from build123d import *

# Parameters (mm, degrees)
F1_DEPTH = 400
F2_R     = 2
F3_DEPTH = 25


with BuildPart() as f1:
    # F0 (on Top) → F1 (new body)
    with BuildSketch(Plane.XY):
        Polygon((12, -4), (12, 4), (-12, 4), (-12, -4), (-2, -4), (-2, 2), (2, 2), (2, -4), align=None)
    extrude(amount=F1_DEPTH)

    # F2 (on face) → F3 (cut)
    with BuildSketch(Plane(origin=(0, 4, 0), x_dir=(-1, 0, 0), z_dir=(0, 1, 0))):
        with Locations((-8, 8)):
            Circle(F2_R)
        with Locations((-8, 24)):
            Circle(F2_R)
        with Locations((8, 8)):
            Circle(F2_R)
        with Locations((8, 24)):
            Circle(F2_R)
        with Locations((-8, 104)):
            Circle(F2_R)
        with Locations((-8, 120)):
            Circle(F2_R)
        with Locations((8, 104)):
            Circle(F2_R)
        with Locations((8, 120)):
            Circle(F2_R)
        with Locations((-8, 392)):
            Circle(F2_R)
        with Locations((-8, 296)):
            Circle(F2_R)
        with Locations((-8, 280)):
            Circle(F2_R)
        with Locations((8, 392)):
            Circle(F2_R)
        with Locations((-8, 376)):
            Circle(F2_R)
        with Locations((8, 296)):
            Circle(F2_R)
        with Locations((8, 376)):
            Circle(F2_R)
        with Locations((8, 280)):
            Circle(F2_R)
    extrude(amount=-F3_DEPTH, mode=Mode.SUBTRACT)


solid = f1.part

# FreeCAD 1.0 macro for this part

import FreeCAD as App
import Part
import Sketcher


def add_polygon(sketch, points):
    """Adds a closed chain of lines whose ends are joined by coincident constraints."""
    first, n = sketch.GeometryCount, len(points)
    for a, b in zip(points, points[1:] + points[:1]):
        sketch.addGeometry(Part.LineSegment(App.Vector(*a, 0), App.Vector(*b, 0)), False)
    for i in range(n):
        sketch.addConstraint(Sketcher.Constraint("Coincident", first + i, 2, first + (i + 1) % n, 1))

doc = App.newDocument("Part")
body = doc.addObject("PartDesign::Body", "Body")

sketch1 = doc.addObject("Sketcher::SketchObject", "Sketch")
body.addObject(sketch1)
sketch1.AttachmentSupport = (doc.XY_Plane, [""])
sketch1.MapMode = "FlatFace"
add_polygon(sketch1, [(12, -4), (12, 4), (-12, 4), (-12, -4), (-2, -4), (-2, 2), (2, 2), (2, -4)])
sketch1.addConstraint([
    Sketcher.Constraint("Vertical", 0),
    Sketcher.Constraint("Horizontal", 1),
    Sketcher.Constraint("Vertical", 2),
    Sketcher.Constraint("Horizontal", 3),
    Sketcher.Constraint("Vertical", 4),
    Sketcher.Constraint("Horizontal", 5),
    Sketcher.Constraint("Vertical", 6),
    Sketcher.Constraint("Horizontal", 7),
    Sketcher.Constraint("Symmetric", 0, 2, 2, 2, -1, 1),
    Sketcher.Constraint("Symmetric", 3, 2, 6, 2, -2),
    Sketcher.Constraint("DistanceX", 1, 2, 1, 1, 24.0),
    Sketcher.Constraint("DistanceX", 3, 1, 3, 2, 10.0),
    Sketcher.Constraint("DistanceY", 0, 1, 0, 2, 8.0),
    Sketcher.Constraint("DistanceY", 4, 1, 4, 2, 6.0),
])
pad1 = doc.addObject("PartDesign::Pad", "Pad")
body.addObject(pad1)
pad1.Profile = sketch1
pad1.Length = 400

sketch2 = doc.addObject("Sketcher::SketchObject", "Sketch001")
body.addObject(sketch2)
sketch2.AttachmentSupport = (doc.XZ_Plane, [""])
sketch2.MapMode = "FlatFace"
sketch2.AttachmentOffset = App.Placement(App.Vector(0, 0, -4), App.Rotation())
sketch2.addGeometry([
    Part.Circle(App.Vector(8, 8, 0), App.Vector(0, 0, 1), 2),
    Part.Circle(App.Vector(8, 24, 0), App.Vector(0, 0, 1), 2),
    Part.Circle(App.Vector(-8, 8, 0), App.Vector(0, 0, 1), 2),
    Part.Circle(App.Vector(-8, 24, 0), App.Vector(0, 0, 1), 2),
    Part.Circle(App.Vector(8, 104, 0), App.Vector(0, 0, 1), 2),
    Part.Circle(App.Vector(8, 120, 0), App.Vector(0, 0, 1), 2),
    Part.Circle(App.Vector(-8, 104, 0), App.Vector(0, 0, 1), 2),
    Part.Circle(App.Vector(-8, 120, 0), App.Vector(0, 0, 1), 2),
    Part.Circle(App.Vector(8, 392, 0), App.Vector(0, 0, 1), 2),
    Part.Circle(App.Vector(8, 296, 0), App.Vector(0, 0, 1), 2),
    Part.Circle(App.Vector(8, 280, 0), App.Vector(0, 0, 1), 2),
    Part.Circle(App.Vector(-8, 392, 0), App.Vector(0, 0, 1), 2),
    Part.Circle(App.Vector(8, 376, 0), App.Vector(0, 0, 1), 2),
    Part.Circle(App.Vector(-8, 296, 0), App.Vector(0, 0, 1), 2),
    Part.Circle(App.Vector(-8, 376, 0), App.Vector(0, 0, 1), 2),
    Part.Circle(App.Vector(-8, 280, 0), App.Vector(0, 0, 1), 2),
], False)
sketch2.addConstraint([
    Sketcher.Constraint("Equal", 0, 1),
    Sketcher.Constraint("Equal", 1, 2),
    Sketcher.Constraint("Equal", 2, 3),
    Sketcher.Constraint("Equal", 3, 4),
    Sketcher.Constraint("Equal", 4, 5),
    Sketcher.Constraint("Equal", 5, 6),
    Sketcher.Constraint("Equal", 6, 7),
    Sketcher.Constraint("Equal", 7, 8),
    Sketcher.Constraint("Equal", 8, 9),
    Sketcher.Constraint("Equal", 9, 10),
    Sketcher.Constraint("Equal", 10, 11),
    Sketcher.Constraint("Equal", 11, 12),
    Sketcher.Constraint("Equal", 12, 13),
    Sketcher.Constraint("Equal", 13, 14),
    Sketcher.Constraint("Equal", 14, 15),
    Sketcher.Constraint("Symmetric", 0, 3, 2, 3, -2),
    Sketcher.Constraint("Symmetric", 1, 3, 3, 3, -2),
    Sketcher.Constraint("Symmetric", 4, 3, 6, 3, -2),
    Sketcher.Constraint("Symmetric", 5, 3, 7, 3, -2),
    Sketcher.Constraint("Symmetric", 8, 3, 11, 3, -2),
    Sketcher.Constraint("Symmetric", 9, 3, 13, 3, -2),
    Sketcher.Constraint("Symmetric", 12, 3, 14, 3, -2),
    Sketcher.Constraint("Symmetric", 10, 3, 15, 3, -2),
    Sketcher.Constraint("Vertical", 0, 3, 1, 3),
    Sketcher.Constraint("Vertical", 1, 3, 4, 3),
    Sketcher.Constraint("Vertical", 4, 3, 5, 3),
    Sketcher.Constraint("Vertical", 5, 3, 8, 3),
    Sketcher.Constraint("Vertical", 8, 3, 9, 3),
    Sketcher.Constraint("Vertical", 9, 3, 10, 3),
    Sketcher.Constraint("Vertical", 10, 3, 12, 3),
    Sketcher.Constraint("Diameter", 0, 4.0),
    Sketcher.Constraint("DistanceX", -1, 1, 0, 3, 8.0),
    Sketcher.Constraint("DistanceY", -1, 1, 0, 3, 8.0),
    Sketcher.Constraint("DistanceY", -1, 1, 1, 3, 24.0),
    Sketcher.Constraint("DistanceY", -1, 1, 4, 3, 104.0),
    Sketcher.Constraint("DistanceY", -1, 1, 5, 3, 120.0),
    Sketcher.Constraint("DistanceY", -1, 1, 8, 3, 392.0),
    Sketcher.Constraint("DistanceY", -1, 1, 9, 3, 296.0),
    Sketcher.Constraint("DistanceY", -1, 1, 10, 3, 280.0),
    Sketcher.Constraint("DistanceY", -1, 1, 12, 3, 376.0),
])
pocket1 = doc.addObject("PartDesign::Pocket", "Pocket")
body.addObject(pocket1)
pocket1.Profile = sketch2
pocket1.Length = 25
pocket1.Reversed = True

doc.recompute()
